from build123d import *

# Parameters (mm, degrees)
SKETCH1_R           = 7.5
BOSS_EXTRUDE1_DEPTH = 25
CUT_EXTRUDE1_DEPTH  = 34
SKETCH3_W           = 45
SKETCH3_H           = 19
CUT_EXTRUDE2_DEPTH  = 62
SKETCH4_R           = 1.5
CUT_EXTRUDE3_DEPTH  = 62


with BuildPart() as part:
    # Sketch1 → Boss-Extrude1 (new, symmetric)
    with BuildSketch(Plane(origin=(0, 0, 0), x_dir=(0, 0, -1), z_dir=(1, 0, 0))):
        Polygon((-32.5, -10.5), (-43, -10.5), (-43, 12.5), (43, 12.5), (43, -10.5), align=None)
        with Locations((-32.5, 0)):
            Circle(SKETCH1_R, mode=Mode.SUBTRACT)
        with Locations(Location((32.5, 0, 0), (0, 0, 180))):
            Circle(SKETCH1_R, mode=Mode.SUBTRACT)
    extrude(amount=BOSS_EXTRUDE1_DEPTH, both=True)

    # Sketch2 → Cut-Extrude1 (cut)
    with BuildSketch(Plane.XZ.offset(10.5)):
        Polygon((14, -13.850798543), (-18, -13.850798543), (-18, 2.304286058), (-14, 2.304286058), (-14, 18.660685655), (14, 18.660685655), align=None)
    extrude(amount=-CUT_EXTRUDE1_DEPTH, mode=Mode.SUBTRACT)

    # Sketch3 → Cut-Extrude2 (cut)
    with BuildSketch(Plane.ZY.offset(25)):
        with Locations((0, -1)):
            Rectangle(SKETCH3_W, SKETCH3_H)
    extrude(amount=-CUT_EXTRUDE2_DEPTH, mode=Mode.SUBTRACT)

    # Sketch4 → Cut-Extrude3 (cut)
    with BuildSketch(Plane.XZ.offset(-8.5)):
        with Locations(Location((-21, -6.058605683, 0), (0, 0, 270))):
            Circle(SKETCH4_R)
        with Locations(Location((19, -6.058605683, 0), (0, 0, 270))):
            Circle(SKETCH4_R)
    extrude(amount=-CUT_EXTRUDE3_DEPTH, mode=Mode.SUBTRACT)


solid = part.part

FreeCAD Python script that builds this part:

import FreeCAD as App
import Part
import Sketcher
from FreeCAD import Vector
Q = App.Units.Quantity

doc = App.newDocument("Part")
body = doc.addObject("PartDesign::Body", "Body")

# Sketch on YZ plane
sketch1 = doc.addObject("Sketcher::SketchObject", "Sketch")
body.addObject(sketch1)
sketch1.AttachmentSupport = (doc.YZ_Plane, [""])
sketch1.MapMode = "FlatFace"
sketch1.addGeometry([
    Part.LineSegment(Vector(-10.5, 43, 0), Vector(-10.5, -43, 0)),  # 0
    Part.LineSegment(Vector(-10.5, -43, 0), Vector(12.5, -43, 0)),  # 1
    Part.LineSegment(Vector(12.5, -43, 0), Vector(12.5, 43, 0)),  # 2
    Part.LineSegment(Vector(12.5, 43, 0), Vector(-10.5, 43, 0)),  # 3
    Part.Circle(Vector(0, -32.5, 0), Vector(0, 0, 1), 7.5),  # 4
    Part.Circle(Vector(0, 32.5, 0), Vector(0, 0, 1), 7.5),  # 5
], False)
sketch1.addConstraint([
    Sketcher.Constraint("Coincident", 0, 2, 1, 1),
    Sketcher.Constraint("Coincident", 1, 2, 2, 1),
    Sketcher.Constraint("Coincident", 2, 2, 3, 1),
    Sketcher.Constraint("Coincident", 3, 2, 0, 1),
    Sketcher.Constraint("Vertical", 0),
    Sketcher.Constraint("Horizontal", 1),
    Sketcher.Constraint("Vertical", 2),
    Sketcher.Constraint("Horizontal", 3),
    Sketcher.Constraint("Equal", 4, 5),
    Sketcher.Constraint("Symmetric", 4, 3, 5, 3, -1, 1),
    Sketcher.Constraint("PointOnObject", 4, 3, -2),
    Sketcher.Constraint("Diameter", 4, Q("15 mm")),
    Sketcher.Constraint("DistanceX", 1, 1, 1, 2, Q("23 mm")),
    Sketcher.Constraint("DistanceY", 0, 2, 0, 1, Q("86 mm")),
    Sketcher.Constraint("DistanceY", 0, 2, -1, 1, Q("43 mm")),
    Sketcher.Constraint("DistanceY", 4, 3, 5, 3, Q("65 mm")),
    Sketcher.Constraint("DistanceX", 0, 2, -1, 1, Q("10.5 mm")),
])
pad1 = doc.addObject("PartDesign::Pad", "Pad")
body.addObject(pad1)
pad1.Profile = sketch1
pad1.Length = 50
pad1.Midplane = True

# Sketch on XZ plane
sketch2 = doc.addObject("Sketcher::SketchObject", "Sketch001")
body.addObject(sketch2)
sketch2.AttachmentSupport = (doc.XZ_Plane, [""])
sketch2.MapMode = "FlatFace"
sketch2.AttachmentOffset = App.Placement(Vector(0, 0, 10.5), App.Rotation())
sketch2.addGeometry([
    Part.LineSegment(Vector(-18, -13.850799, 0), Vector(14, -13.850799, 0)),  # 0
    Part.LineSegment(Vector(14, -13.850799, 0), Vector(14, 18.660686, 0)),  # 1
    Part.LineSegment(Vector(14, 18.660686, 0), Vector(-14, 18.660686, 0)),  # 2
    Part.LineSegment(Vector(-14, 18.660686, 0), Vector(-14, 2.304286, 0)),  # 3
    Part.LineSegment(Vector(-14, 2.304286, 0), Vector(-18, 2.304286, 0)),  # 4
    Part.LineSegment(Vector(-18, 2.304286, 0), Vector(-18, -13.850799, 0)),  # 5
], False)
sketch2.addConstraint([
    Sketcher.Constraint("Coincident", 0, 2, 1, 1),
    Sketcher.Constraint("Coincident", 1, 2, 2, 1),
    Sketcher.Constraint("Coincident", 2, 2, 3, 1),
    Sketcher.Constraint("Coincident", 3, 2, 4, 1),
    Sketcher.Constraint("Coincident", 4, 2, 5, 1),
    Sketcher.Constraint("Coincident", 5, 2, 0, 1),
    Sketcher.Constraint("Horizontal", 0),
    Sketcher.Constraint("Vertical", 1),
    Sketcher.Constraint("Horizontal", 2),
    Sketcher.Constraint("Vertical", 3),
    Sketcher.Constraint("Horizontal", 4),
    Sketcher.Constraint("Vertical", 5),
    Sketcher.Constraint("DistanceX", 0, 1, 0, 2, Q("32 mm")),
    Sketcher.Constraint("DistanceX", 2, 2, 2, 1, Q("28 mm")),
    Sketcher.Constraint("DistanceX", -1, 1, 0, 2, Q("14 mm")),
    Sketcher.Constraint("DistanceY", 3, 2, 3, 1, Q("16.3564 mm")),
    Sketcher.Constraint("DistanceY", 0, 2, -1, 1, Q("13.850799 mm")),
    Sketcher.Constraint("DistanceY", 1, 1, 1, 2, Q("32.511484 mm")),
])
pocket1 = doc.addObject("PartDesign::Pocket", "Pocket")
body.addObject(pocket1)
pocket1.Profile = sketch2
pocket1.Length = 34

# Sketch on YZ plane
sketch3 = doc.addObject("Sketcher::SketchObject", "Sketch002")
body.addObject(sketch3)
sketch3.AttachmentSupport = (doc.YZ_Plane, [""])
sketch3.MapMode = "FlatFace"
sketch3.AttachmentOffset = App.Placement(Vector(0, 0, -25), App.Rotation())
sketch3.addGeometry([
    Part.LineSegment(Vector(8.5, -22.5, 0), Vector(-10.5, -22.5, 0)),
    Part.LineSegment(Vector(-10.5, -22.5, 0), Vector(-10.5, 22.5, 0)),
    Part.LineSegment(Vector(-10.5, 22.5, 0), Vector(8.5, 22.5, 0)),
    Part.LineSegment(Vector(8.5, 22.5, 0), Vector(8.5, -22.5, 0)),
], False)
sketch3.addConstraint([
    Sketcher.Constraint("Coincident", 0, 2, 1, 1),
    Sketcher.Constraint("Coincident", 1, 2, 2, 1),
    Sketcher.Constraint("Coincident", 2, 2, 3, 1),
    Sketcher.Constraint("Coincident", 3, 2, 0, 1),
    Sketcher.Constraint("Horizontal", 0),
    Sketcher.Constraint("Vertical", 1),
    Sketcher.Constraint("Horizontal", 2),
    Sketcher.Constraint("Vertical", 3),
    Sketcher.Constraint("DistanceX", 0, 2, 0, 1, Q("19 mm")),
    Sketcher.Constraint("DistanceY", 1, 1, 1, 2, Q("45 mm")),
    Sketcher.Constraint("DistanceX", 0, 2, -1, 1, Q("10.5 mm")),
    Sketcher.Constraint("DistanceY", 0, 2, -1, 1, Q("22.5 mm")),
])
pocket2 = doc.addObject("PartDesign::Pocket", "Pocket001")
body.addObject(pocket2)
pocket2.Profile = sketch3
pocket2.Length = 62
pocket2.Reversed = True

# Sketch on XZ plane
sketch4 = doc.addObject("Sketcher::SketchObject", "Sketch003")
body.addObject(sketch4)
sketch4.AttachmentSupport = (doc.XZ_Plane, [""])
sketch4.MapMode = "FlatFace"
sketch4.AttachmentOffset = App.Placement(Vector(0, 0, -8.5), App.Rotation())
sketch4.addGeometry([
    Part.Circle(Vector(-21, -6.058606, 0), Vector(0, 0, 1), 1.5),
    Part.Circle(Vector(19, -6.058606, 0), Vector(0, 0, 1), 1.5),
], False)
sketch4.addConstraint([
    Sketcher.Constraint("Equal", 0, 1),
    Sketcher.Constraint("Horizontal", 0, 3, 1, 3),
    Sketcher.Constraint("Diameter", 0, Q("3 mm")),
    Sketcher.Constraint("DistanceX", 0, 3, -1, 1, Q("21 mm")),
    Sketcher.Constraint("DistanceX", -1, 1, 1, 3, Q("19 mm")),
    Sketcher.Constraint("DistanceY", 0, 3, -1, 1, Q("6.058606 mm")),
])
pocket3 = doc.addObject("PartDesign::Pocket", "Pocket002")
body.addObject(pocket3)
pocket3.Profile = sketch4
pocket3.Length = 62

doc.recompute()
